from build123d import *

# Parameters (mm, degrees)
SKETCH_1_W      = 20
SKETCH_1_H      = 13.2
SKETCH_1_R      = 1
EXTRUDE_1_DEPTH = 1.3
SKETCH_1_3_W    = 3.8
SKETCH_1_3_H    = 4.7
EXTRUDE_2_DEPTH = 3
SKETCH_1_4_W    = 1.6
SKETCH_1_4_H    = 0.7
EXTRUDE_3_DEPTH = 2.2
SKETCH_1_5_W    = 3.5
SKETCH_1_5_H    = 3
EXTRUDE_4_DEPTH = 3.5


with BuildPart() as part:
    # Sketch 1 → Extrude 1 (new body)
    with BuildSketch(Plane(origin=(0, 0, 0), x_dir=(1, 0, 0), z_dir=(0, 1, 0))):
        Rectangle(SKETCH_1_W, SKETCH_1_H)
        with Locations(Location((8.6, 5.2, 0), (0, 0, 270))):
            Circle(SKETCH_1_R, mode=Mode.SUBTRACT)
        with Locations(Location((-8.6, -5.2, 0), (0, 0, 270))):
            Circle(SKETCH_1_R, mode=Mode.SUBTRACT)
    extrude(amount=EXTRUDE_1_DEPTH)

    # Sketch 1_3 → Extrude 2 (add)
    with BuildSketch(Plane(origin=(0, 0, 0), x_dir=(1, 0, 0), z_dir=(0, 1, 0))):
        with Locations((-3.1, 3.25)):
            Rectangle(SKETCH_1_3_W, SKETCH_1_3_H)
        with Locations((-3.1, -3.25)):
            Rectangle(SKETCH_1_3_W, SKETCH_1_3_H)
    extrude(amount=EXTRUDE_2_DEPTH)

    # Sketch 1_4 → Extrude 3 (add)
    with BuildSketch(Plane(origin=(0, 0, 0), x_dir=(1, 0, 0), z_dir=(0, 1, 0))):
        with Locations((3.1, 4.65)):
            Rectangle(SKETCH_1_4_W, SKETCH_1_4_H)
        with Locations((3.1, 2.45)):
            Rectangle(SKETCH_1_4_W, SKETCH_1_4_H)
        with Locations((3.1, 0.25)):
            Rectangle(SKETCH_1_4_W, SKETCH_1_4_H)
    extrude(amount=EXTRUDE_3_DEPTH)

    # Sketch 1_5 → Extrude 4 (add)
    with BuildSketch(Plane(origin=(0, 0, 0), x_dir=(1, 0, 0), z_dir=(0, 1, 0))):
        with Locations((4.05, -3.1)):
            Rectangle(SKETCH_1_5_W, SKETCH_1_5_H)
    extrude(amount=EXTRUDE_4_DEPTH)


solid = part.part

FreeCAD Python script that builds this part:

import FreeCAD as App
import Part
import Sketcher
from FreeCAD import Vector
Q = App.Units.Quantity


def add_polygon(sketch, points):
    """Adds a closed chain of lines whose ends are joined by coincident constraints."""
    first, n = sketch.GeometryCount, len(points)
    for a, b in zip(points, points[1:] + points[:1]):
        sketch.addGeometry(Part.LineSegment(App.Vector(*a, 0), App.Vector(*b, 0)), False)
    for i in range(n):
        sketch.addConstraint(Sketcher.Constraint("Coincident", first + i, 2, first + (i + 1) % n, 1))

doc = App.newDocument("Part")
body = doc.addObject("PartDesign::Body", "Body")

# Sketch on XZ plane
sketch1 = body.newObject("Sketcher::SketchObject", "Sketch")
sketch1.AttachmentSupport = (doc.getObject("XZ_Plane"), [""])
sketch1.MapMode = "FlatFace"
add_polygon(sketch1, [(-10, -6.6), (-10, 6.6), (10, 6.6), (10, -6.6)])  # lines 0-3
sketch1.addGeometry(Part.Circle(Vector(-8.6, 5.2, 0), Vector(0, 0, 1), 1), False)  # 4
sketch1.addGeometry(Part.Circle(Vector(8.6, -5.2, 0), Vector(0, 0, 1), 1), False)  # 5
sketch1.addConstraint([
    Sketcher.Constraint("Vertical", 0),
    Sketcher.Constraint("Horizontal", 1),
    Sketcher.Constraint("Vertical", 2),
    Sketcher.Constraint("Horizontal", 3),
    Sketcher.Constraint("Equal", 4, 5),
    Sketcher.Constraint("Symmetric", 4, 3, 5, 3, -1, 1),
    Sketcher.Constraint("Symmetric", 0, 2, 2, 2, -1, 1),
    Sketcher.Constraint("Diameter", 4, Q("2 mm")),
    Sketcher.Constraint("DistanceX", 1, 1, 1, 2, Q("20 mm")),
    Sketcher.Constraint("DistanceY", 0, 1, 0, 2, Q("13.2 mm")),
    Sketcher.Constraint("DistanceX", 4, 3, -1, 1, Q("8.6 mm")),
    Sketcher.Constraint("DistanceY", -1, 1, 4, 3, Q("5.2 mm")),
])
pad1 = body.newObject("PartDesign::Pad", "Pad")
pad1.Profile = sketch1
pad1.Length = 1.3
pad1.Reversed = True

# Sketch on XZ plane
sketch2 = body.newObject("Sketcher::SketchObject", "Sketch001")
sketch2.AttachmentSupport = (doc.getObject("XZ_Plane"), [""])
sketch2.MapMode = "FlatFace"
add_polygon(sketch2, [(-5, -5.6), (-5, -0.9), (-1.2, -0.9), (-1.2, -5.6)])  # lines 0-3
add_polygon(sketch2, [(-5, 0.9), (-5, 5.6), (-1.2, 5.6), (-1.2, 0.9)])  # lines 4-7
sketch2.addConstraint([
    Sketcher.Constraint("Vertical", 0),
    Sketcher.Constraint("Horizontal", 1),
    Sketcher.Constraint("Vertical", 2),
    Sketcher.Constraint("Horizontal", 3),
    Sketcher.Constraint("Vertical", 4),
    Sketcher.Constraint("Horizontal", 5),
    Sketcher.Constraint("Vertical", 6),
    Sketcher.Constraint("Horizontal", 7),
    Sketcher.Constraint("Symmetric", 3, 2, 4, 2, -1),
    Sketcher.Constraint("Symmetric", 1, 2, 6, 2, -1),
    Sketcher.Constraint("DistanceX", 1, 1, 1, 2, Q("3.8 mm")),
    Sketcher.Constraint("DistanceY", 0, 1, 0, 2, Q("4.7 mm")),
    Sketcher.Constraint("DistanceX", 0, 2, -1, 1, Q("5 mm")),
    Sketcher.Constraint("DistanceY", 0, 2, -1, 1, Q("0.9 mm")),
])
pad2 = body.newObject("PartDesign::Pad", "Pad001")
pad2.Profile = sketch2
pad2.Length = 3
pad2.Reversed = True

# Sketch on XZ plane
sketch3 = body.newObject("Sketcher::SketchObject", "Sketch002")
sketch3.AttachmentSupport = (doc.getObject("XZ_Plane"), [""])
sketch3.MapMode = "FlatFace"
add_polygon(sketch3, [(2.3, -5), (2.3, -4.3), (3.9, -4.3), (3.9, -5)])  # lines 0-3
add_polygon(sketch3, [(2.3, -2.8), (2.3, -2.1), (3.9, -2.1), (3.9, -2.8)])  # lines 4-7
add_polygon(sketch3, [(2.3, -0.6), (2.3, 0.1), (3.9, 0.1), (3.9, -0.6)])  # lines 8-11
sketch3.addConstraint([
    Sketcher.Constraint("Vertical", 0),
    Sketcher.Constraint("Horizontal", 1),
    Sketcher.Constraint("Vertical", 2),
    Sketcher.Constraint("Horizontal", 3),
    Sketcher.Constraint("Vertical", 4),
    Sketcher.Constraint("Horizontal", 5),
    Sketcher.Constraint("Vertical", 6),
    Sketcher.Constraint("Horizontal", 7),
    Sketcher.Constraint("Vertical", 8),
    Sketcher.Constraint("Horizontal", 9),
    Sketcher.Constraint("Vertical", 10),
    Sketcher.Constraint("Horizontal", 11),
    Sketcher.Constraint("Vertical", 3, 2, 4, 2),
    Sketcher.Constraint("Vertical", 2, 2, 5, 2),
    Sketcher.Constraint("Vertical", 7, 2, 8, 2),
    Sketcher.Constraint("Vertical", 6, 2, 9, 2),
    Sketcher.Constraint("Equal", 2, 4),
    Sketcher.Constraint("Equal", 6, 8),
    Sketcher.Constraint("DistanceX", 1, 1, 1, 2, Q("1.6 mm")),
    Sketcher.Constraint("DistanceY", 0, 1, 0, 2, Q("0.7 mm")),
    Sketcher.Constraint("DistanceY", 2, 2, -1, 1, Q("5 mm")),
    Sketcher.Constraint("DistanceX", -1, 1, 0, 2, Q("2.3 mm")),
    Sketcher.Constraint("DistanceY", 4, 2, -1, 1, Q("2.1 mm")),
    Sketcher.Constraint("DistanceY", -1, 1, 8, 2, Q("0.1 mm")),
])
pad3 = body.newObject("PartDesign::Pad", "Pad002")
pad3.Profile = sketch3
pad3.Length = 2.2
pad3.Reversed = True

# Sketch on XZ plane
sketch4 = body.newObject("Sketcher::SketchObject", "Sketch003")
sketch4.AttachmentSupport = (doc.getObject("XZ_Plane"), [""])
sketch4.MapMode = "FlatFace"
add_polygon(sketch4, [(2.3, 1.6), (2.3, 4.6), (5.8, 4.6), (5.8, 1.6)])  # lines 0-3
sketch4.addConstraint([
    Sketcher.Constraint("Vertical", 0),
    Sketcher.Constraint("Horizontal", 1),
    Sketcher.Constraint("Vertical", 2),
    Sketcher.Constraint("Horizontal", 3),
    Sketcher.Constraint("DistanceY", 0, 1, 0, 2, Q("3 mm")),
    Sketcher.Constraint("DistanceX", 1, 1, 1, 2, Q("3.5 mm")),
    Sketcher.Constraint("DistanceX", -1, 1, 0, 2, Q("2.3 mm")),
    Sketcher.Constraint("DistanceY", -1, 1, 0, 2, Q("4.6 mm")),
])
pad4 = body.newObject("PartDesign::Pad", "Pad003")
pad4.Profile = sketch4
pad4.Length = 3.5
pad4.Reversed = True

doc.recompute()
